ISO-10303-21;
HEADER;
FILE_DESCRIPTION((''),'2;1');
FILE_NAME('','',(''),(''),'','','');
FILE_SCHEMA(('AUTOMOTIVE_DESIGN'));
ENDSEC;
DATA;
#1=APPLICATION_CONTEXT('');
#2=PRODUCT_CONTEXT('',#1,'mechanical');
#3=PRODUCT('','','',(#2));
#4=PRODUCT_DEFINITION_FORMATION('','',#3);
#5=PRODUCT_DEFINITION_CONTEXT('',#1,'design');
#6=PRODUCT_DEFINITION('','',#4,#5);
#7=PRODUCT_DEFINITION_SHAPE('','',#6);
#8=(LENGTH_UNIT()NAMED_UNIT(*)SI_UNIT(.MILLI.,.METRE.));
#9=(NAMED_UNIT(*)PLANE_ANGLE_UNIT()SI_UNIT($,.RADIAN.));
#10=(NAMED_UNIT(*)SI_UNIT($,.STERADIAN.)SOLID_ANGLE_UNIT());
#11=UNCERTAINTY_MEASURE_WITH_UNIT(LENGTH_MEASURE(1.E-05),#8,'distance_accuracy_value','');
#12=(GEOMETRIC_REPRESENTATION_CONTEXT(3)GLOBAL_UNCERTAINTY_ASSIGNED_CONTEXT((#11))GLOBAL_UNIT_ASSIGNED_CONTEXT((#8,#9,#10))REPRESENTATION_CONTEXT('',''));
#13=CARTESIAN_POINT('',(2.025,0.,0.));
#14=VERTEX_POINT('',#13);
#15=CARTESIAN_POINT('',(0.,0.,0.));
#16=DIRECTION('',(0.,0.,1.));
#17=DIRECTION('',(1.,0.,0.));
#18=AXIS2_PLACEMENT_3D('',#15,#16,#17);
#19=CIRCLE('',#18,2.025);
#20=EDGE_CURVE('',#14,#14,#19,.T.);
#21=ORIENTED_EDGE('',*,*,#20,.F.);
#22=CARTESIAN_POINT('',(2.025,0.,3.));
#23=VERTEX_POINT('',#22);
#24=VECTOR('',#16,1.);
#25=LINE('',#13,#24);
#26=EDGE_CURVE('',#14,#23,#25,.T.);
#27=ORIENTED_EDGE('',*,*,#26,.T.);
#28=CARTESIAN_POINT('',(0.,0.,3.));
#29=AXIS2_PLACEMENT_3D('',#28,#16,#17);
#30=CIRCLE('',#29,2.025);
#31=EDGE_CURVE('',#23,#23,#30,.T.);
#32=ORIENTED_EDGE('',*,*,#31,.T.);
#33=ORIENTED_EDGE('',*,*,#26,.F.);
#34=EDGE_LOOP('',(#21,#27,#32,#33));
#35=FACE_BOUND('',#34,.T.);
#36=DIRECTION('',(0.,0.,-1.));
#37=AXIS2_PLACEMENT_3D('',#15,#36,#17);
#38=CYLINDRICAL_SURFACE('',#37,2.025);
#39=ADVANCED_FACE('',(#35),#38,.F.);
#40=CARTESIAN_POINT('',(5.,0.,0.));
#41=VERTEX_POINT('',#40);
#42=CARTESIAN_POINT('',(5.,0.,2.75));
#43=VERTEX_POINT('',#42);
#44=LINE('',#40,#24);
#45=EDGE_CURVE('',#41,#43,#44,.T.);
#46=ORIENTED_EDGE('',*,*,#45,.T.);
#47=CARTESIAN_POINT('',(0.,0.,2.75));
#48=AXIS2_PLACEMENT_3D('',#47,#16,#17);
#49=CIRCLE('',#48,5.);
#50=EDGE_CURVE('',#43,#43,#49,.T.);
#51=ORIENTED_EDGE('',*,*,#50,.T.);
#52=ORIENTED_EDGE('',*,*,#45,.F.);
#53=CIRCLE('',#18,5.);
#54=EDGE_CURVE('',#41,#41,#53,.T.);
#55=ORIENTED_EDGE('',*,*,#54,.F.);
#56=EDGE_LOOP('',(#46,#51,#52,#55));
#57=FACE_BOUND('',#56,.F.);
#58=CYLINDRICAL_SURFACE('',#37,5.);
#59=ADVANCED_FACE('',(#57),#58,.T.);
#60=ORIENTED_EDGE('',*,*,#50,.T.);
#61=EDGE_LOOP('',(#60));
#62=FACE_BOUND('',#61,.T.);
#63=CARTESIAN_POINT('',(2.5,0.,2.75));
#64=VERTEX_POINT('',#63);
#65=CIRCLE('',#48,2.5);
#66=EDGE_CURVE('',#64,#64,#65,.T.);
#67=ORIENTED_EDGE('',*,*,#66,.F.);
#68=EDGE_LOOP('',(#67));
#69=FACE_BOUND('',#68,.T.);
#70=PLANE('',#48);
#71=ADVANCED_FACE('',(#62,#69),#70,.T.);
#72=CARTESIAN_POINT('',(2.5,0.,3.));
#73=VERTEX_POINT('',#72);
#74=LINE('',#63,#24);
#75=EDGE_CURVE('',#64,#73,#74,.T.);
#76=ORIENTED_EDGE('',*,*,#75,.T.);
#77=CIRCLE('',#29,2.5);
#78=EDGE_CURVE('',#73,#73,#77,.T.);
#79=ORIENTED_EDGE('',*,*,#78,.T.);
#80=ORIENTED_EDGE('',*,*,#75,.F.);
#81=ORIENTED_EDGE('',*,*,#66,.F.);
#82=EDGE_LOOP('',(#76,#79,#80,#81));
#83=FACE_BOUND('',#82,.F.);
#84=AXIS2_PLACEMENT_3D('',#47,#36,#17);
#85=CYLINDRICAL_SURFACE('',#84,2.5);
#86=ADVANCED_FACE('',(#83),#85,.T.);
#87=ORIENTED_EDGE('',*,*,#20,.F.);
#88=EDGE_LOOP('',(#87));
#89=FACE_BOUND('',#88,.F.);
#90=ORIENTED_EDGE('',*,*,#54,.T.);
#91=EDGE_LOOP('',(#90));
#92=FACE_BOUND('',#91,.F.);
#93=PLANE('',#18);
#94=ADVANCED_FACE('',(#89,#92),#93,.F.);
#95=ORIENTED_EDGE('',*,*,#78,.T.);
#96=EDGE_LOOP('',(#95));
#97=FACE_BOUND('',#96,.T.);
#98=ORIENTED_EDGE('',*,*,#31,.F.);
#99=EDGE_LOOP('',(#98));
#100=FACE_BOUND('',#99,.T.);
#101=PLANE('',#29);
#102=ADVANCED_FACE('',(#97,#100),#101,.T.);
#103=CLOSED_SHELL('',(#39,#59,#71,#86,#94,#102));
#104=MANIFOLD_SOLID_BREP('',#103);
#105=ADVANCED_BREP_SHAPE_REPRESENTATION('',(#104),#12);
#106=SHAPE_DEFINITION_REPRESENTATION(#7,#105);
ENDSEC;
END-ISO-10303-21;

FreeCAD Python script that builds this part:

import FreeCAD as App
import Part
import Sketcher

V = App.Vector

doc = App.newDocument("Part")
params = doc.addObject("Spreadsheet::Sheet", "Params")
for row, (alias, value) in enumerate([
    ("sketch1_diameter", "10 mm"),
    ("sketch1_diameter2", "4.05 mm"),
    ("pad1_length", "2.75 mm"),
    ("sketch2_diameter", "5 mm"),
    ("sketch2_diameter2", "4.05 mm"),
    ("pad2_length", "0.25 mm"),
], start=1):
    params.set(f"A{row}", alias)
    params.set(f"B{row}", "=" + value)
    params.setAlias(f"B{row}", alias)

body = doc.addObject("PartDesign::Body", "Body")

# Sketch on XY plane
sketch1 = body.newObject("Sketcher::SketchObject", "Sketch")
sketch1.AttachmentSupport = (doc.getObject("XY_Plane"), [""])
sketch1.MapMode = "FlatFace"
sketch1.addGeometry([
    Part.Circle(V(0, 0, 0), V(0, 0, 1), 5),
    Part.Circle(V(0, 0, 0), V(0, 0, 1), 2),
], False)
sketch1.addConstraint([
    Sketcher.Constraint("Coincident", 0, 3, -1, 1),
    Sketcher.Constraint("Coincident", 1, 3, -1, 1),
    Sketcher.Constraint("Diameter", 0, 10.0),
    Sketcher.Constraint("Diameter", 1, 4.05),
])
sketch1.setExpression("Constraints[2]", "Params.sketch1_diameter")
sketch1.setExpression("Constraints[3]", "Params.sketch1_diameter2")
pad1 = body.newObject("PartDesign::Pad", "Pad")
pad1.Profile = sketch1
pad1.setExpression("Length", "Params.pad1_length")

# Sketch on XY plane
sketch2 = body.newObject("Sketcher::SketchObject", "Sketch001")
sketch2.AttachmentSupport = (doc.getObject("XY_Plane"), [""])
sketch2.MapMode = "FlatFace"
sketch2.AttachmentOffset = App.Placement(V(0, 0, 2.75), App.Rotation())
sketch2.addGeometry([
    Part.Circle(V(0, 0, 0), V(0, 0, 1), 2.5),
    Part.Circle(V(0, 0, 0), V(0, 0, 1), 2),
], False)
sketch2.addConstraint([
    Sketcher.Constraint("Coincident", 0, 3, -1, 1),
    Sketcher.Constraint("Coincident", 1, 3, -1, 1),
    Sketcher.Constraint("Diameter", 0, 5.0),
    Sketcher.Constraint("Diameter", 1, 4.05),
])
sketch2.setExpression("Constraints[2]", "Params.sketch2_diameter")
sketch2.setExpression("Constraints[3]", "Params.sketch2_diameter2")
pad2 = body.newObject("PartDesign::Pad", "Pad001")
pad2.Profile = sketch2
pad2.setExpression("Length", "Params.pad2_length")

doc.recompute()
